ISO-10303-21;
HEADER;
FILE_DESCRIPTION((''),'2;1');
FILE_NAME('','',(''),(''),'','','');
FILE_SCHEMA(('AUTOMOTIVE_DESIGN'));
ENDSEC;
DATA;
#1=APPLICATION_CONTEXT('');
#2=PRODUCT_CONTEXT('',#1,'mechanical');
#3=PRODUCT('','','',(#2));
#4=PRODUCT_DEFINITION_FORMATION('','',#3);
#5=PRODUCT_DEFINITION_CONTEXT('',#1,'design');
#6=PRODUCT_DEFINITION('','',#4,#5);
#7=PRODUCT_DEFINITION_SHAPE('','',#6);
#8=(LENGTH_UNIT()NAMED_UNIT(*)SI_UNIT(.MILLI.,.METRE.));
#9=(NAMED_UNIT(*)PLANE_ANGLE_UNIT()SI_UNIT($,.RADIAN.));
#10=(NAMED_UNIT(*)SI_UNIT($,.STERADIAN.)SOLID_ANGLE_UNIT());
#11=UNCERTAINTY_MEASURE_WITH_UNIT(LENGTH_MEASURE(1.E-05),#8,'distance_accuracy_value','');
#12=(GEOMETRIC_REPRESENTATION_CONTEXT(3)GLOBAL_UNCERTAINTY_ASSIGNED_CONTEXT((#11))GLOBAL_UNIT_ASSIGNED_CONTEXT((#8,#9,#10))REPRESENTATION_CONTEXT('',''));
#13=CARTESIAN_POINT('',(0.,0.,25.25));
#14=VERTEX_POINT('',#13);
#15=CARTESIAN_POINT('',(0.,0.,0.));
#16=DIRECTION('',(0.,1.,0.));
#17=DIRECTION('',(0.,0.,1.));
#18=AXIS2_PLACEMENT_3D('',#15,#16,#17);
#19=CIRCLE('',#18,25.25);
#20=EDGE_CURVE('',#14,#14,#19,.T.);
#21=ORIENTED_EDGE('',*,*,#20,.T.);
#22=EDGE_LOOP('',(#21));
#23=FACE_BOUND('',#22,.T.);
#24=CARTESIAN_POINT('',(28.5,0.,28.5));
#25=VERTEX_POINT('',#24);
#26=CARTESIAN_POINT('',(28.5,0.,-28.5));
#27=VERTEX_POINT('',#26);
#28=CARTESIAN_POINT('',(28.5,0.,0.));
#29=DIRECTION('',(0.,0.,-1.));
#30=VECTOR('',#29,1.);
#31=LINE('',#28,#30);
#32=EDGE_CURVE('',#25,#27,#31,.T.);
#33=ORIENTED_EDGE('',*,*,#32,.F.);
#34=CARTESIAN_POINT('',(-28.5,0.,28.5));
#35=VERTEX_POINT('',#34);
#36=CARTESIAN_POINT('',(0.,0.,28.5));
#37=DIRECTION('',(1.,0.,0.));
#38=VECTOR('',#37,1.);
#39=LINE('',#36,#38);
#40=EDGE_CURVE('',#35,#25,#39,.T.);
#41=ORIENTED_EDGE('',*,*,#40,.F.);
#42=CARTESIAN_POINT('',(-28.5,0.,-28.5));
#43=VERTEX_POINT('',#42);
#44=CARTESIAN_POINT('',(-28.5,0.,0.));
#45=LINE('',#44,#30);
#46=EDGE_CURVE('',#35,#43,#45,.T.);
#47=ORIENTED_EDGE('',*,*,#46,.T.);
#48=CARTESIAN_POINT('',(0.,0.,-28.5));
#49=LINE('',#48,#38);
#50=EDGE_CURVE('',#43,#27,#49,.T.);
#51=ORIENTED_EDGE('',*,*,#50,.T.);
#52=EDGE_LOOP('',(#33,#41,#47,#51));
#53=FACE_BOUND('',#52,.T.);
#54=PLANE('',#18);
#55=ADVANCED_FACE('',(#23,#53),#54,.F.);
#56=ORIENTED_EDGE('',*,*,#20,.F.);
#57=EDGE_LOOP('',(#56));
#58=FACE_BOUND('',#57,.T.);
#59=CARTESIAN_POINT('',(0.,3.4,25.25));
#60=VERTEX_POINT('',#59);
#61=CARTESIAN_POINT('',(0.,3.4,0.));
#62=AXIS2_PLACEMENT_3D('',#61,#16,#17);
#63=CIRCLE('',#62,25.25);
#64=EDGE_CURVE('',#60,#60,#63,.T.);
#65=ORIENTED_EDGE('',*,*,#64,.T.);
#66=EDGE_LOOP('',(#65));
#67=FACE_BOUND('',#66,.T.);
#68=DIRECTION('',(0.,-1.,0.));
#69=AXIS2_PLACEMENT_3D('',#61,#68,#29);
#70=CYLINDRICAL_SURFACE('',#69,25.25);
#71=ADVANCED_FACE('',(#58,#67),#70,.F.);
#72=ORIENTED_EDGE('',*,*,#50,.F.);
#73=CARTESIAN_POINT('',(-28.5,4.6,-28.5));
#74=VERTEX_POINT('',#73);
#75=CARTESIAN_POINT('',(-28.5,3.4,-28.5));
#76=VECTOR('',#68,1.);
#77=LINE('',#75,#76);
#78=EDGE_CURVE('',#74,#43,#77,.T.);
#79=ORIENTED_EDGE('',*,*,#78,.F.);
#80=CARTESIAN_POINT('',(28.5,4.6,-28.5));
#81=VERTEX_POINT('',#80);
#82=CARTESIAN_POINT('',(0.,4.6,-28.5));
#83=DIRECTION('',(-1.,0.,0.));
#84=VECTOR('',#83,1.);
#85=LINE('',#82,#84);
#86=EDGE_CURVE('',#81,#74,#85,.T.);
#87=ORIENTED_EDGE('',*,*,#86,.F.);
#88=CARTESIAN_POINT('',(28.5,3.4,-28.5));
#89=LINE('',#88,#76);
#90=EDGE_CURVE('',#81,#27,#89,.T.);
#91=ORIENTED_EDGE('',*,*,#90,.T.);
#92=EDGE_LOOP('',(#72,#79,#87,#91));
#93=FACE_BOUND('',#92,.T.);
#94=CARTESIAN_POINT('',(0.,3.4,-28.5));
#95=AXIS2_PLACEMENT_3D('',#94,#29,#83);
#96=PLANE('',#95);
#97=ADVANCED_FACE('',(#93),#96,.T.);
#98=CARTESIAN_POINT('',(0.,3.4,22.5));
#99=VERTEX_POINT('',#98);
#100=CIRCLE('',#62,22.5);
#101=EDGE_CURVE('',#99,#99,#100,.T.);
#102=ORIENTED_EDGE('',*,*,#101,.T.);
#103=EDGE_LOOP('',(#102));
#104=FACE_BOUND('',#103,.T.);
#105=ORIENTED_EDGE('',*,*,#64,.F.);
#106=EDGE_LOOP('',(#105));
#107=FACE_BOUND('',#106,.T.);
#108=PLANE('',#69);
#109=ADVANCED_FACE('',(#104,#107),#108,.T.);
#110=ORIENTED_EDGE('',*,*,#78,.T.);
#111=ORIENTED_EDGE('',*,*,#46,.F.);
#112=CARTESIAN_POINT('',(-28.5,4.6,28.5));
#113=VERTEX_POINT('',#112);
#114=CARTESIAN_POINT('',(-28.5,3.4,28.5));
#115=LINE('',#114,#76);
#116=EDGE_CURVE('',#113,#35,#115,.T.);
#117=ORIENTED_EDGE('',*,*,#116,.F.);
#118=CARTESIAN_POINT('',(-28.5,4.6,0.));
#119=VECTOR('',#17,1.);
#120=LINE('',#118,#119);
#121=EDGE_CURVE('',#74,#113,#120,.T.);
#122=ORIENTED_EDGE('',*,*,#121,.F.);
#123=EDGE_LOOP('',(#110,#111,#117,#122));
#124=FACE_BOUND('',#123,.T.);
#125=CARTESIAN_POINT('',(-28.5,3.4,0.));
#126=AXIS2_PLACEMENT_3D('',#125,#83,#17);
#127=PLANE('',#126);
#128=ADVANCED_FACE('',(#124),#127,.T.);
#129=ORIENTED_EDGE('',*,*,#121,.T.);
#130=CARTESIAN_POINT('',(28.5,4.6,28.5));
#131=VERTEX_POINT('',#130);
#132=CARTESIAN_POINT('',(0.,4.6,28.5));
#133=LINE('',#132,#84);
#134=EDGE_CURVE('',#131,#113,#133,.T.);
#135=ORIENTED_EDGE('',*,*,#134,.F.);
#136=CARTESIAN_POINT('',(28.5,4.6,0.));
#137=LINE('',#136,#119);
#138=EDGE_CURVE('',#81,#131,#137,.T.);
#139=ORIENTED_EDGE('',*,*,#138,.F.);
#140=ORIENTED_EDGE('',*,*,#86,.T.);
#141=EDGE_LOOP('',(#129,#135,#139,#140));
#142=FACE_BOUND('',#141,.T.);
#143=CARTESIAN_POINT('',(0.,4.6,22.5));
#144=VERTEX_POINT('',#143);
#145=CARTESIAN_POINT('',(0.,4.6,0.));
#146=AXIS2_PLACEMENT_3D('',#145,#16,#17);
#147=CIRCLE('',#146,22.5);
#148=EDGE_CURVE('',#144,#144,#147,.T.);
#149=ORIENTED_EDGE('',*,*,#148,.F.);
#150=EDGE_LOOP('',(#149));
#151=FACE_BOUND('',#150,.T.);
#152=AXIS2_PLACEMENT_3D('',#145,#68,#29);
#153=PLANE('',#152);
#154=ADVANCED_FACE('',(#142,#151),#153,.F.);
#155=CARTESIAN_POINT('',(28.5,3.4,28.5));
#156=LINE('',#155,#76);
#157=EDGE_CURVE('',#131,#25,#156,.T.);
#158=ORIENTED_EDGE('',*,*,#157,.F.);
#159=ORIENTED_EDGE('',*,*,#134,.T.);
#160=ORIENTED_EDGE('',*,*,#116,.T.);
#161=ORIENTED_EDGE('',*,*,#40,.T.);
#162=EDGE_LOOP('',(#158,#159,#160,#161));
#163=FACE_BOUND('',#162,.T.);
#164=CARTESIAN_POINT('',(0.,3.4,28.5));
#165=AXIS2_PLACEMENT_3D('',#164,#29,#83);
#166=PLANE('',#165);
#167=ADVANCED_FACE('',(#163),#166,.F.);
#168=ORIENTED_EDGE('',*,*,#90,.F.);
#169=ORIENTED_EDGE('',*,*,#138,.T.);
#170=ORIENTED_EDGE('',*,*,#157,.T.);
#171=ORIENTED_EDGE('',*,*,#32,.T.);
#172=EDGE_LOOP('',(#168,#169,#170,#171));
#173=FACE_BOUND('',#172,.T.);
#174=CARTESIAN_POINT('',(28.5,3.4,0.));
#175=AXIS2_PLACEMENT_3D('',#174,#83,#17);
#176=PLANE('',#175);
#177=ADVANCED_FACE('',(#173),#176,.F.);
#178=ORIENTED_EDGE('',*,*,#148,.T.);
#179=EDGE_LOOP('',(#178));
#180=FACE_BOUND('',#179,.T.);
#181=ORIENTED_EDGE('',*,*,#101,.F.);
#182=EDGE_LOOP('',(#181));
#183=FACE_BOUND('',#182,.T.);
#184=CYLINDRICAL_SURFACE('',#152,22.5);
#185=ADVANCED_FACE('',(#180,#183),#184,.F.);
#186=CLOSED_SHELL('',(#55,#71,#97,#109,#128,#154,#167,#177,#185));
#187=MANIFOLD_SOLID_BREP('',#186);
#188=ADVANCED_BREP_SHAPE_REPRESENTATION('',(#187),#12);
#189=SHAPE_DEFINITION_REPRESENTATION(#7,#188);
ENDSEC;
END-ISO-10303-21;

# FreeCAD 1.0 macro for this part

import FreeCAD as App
import Part
import Sketcher

doc = App.newDocument("Part")
body = doc.addObject("PartDesign::Body", "Body")

# Sketch on XZ plane
sketch1 = doc.addObject("Sketcher::SketchObject", "Sketch")
body.addObject(sketch1)
sketch1.AttachmentSupport = (doc.XZ_Plane, [""])
sketch1.MapMode = "FlatFace"
sketch1.addGeometry(Part.LineSegment(App.Vector(-28.5, -28.5, 0), App.Vector(-28.5, 28.5, 0)), False)
sketch1.addGeometry(Part.LineSegment(App.Vector(-28.5, 28.5, 0), App.Vector(28.5, 28.5, 0)), False)
sketch1.addGeometry(Part.LineSegment(App.Vector(28.5, 28.5, 0), App.Vector(28.5, -28.5, 0)), False)
sketch1.addGeometry(Part.LineSegment(App.Vector(28.5, -28.5, 0), App.Vector(-28.5, -28.5, 0)), False)
sketch1.addGeometry(Part.Circle(App.Vector(0, 0, 0), App.Vector(0, 0, 1), 25.25), False)
sketch1.addConstraint(Sketcher.Constraint("Coincident", 0, 2, 1, 1))
sketch1.addConstraint(Sketcher.Constraint("Coincident", 1, 2, 2, 1))
sketch1.addConstraint(Sketcher.Constraint("Coincident", 2, 2, 3, 1))
sketch1.addConstraint(Sketcher.Constraint("Coincident", 3, 2, 0, 1))
sketch1.addConstraint(Sketcher.Constraint("Vertical", 0))
sketch1.addConstraint(Sketcher.Constraint("Horizontal", 1))
sketch1.addConstraint(Sketcher.Constraint("Vertical", 2))
sketch1.addConstraint(Sketcher.Constraint("Horizontal", 3))
sketch1.addConstraint(Sketcher.Constraint("Coincident", 4, 3, -1, 1))
sketch1.addConstraint(Sketcher.Constraint("Symmetric", 0, 2, 2, 2, -1, 1))
sketch1.addConstraint(Sketcher.Constraint("Equal", 3, 0))
sketch1.addConstraint(Sketcher.Constraint("Diameter", 4, 50.5))
sketch1.addConstraint(Sketcher.Constraint("DistanceX", 1, 1, 1, 2, 57.0))
pad1 = doc.addObject("PartDesign::Pad", "Pad")
body.addObject(pad1)
pad1.Profile = sketch1
pad1.Length = 3.4
pad1.Reversed = True

# Sketch on XZ plane
sketch2 = doc.addObject("Sketcher::SketchObject", "Sketch001")
body.addObject(sketch2)
sketch2.AttachmentSupport = (doc.XZ_Plane, [""])
sketch2.MapMode = "FlatFace"
sketch2.AttachmentOffset = App.Placement(App.Vector(0, 0, -3.4), App.Rotation())
sketch2.addGeometry(Part.LineSegment(App.Vector(-28.5, -28.5, 0), App.Vector(-28.5, 28.5, 0)), False)
sketch2.addGeometry(Part.LineSegment(App.Vector(-28.5, 28.5, 0), App.Vector(28.5, 28.5, 0)), False)
sketch2.addGeometry(Part.LineSegment(App.Vector(28.5, 28.5, 0), App.Vector(28.5, -28.5, 0)), False)
sketch2.addGeometry(Part.LineSegment(App.Vector(28.5, -28.5, 0), App.Vector(-28.5, -28.5, 0)), False)
sketch2.addGeometry(Part.Circle(App.Vector(0, 0, 0), App.Vector(0, 0, 1), 22.5), False)
sketch2.addConstraint(Sketcher.Constraint("Coincident", 0, 2, 1, 1))
sketch2.addConstraint(Sketcher.Constraint("Coincident", 1, 2, 2, 1))
sketch2.addConstraint(Sketcher.Constraint("Coincident", 2, 2, 3, 1))
sketch2.addConstraint(Sketcher.Constraint("Coincident", 3, 2, 0, 1))
sketch2.addConstraint(Sketcher.Constraint("Vertical", 0))
sketch2.addConstraint(Sketcher.Constraint("Horizontal", 1))
sketch2.addConstraint(Sketcher.Constraint("Vertical", 2))
sketch2.addConstraint(Sketcher.Constraint("Horizontal", 3))
sketch2.addConstraint(Sketcher.Constraint("Coincident", 4, 3, -1, 1))
sketch2.addConstraint(Sketcher.Constraint("Symmetric", 0, 2, 2, 2, -1, 1))
sketch2.addConstraint(Sketcher.Constraint("Equal", 3, 0))
sketch2.addConstraint(Sketcher.Constraint("Diameter", 4, 45.0))
sketch2.addConstraint(Sketcher.Constraint("DistanceX", 1, 1, 1, 2, 57.0))
pad2 = doc.addObject("PartDesign::Pad", "Pad001")
body.addObject(pad2)
pad2.Profile = sketch2
pad2.Length = 1.2
pad2.Reversed = True

doc.recompute()
